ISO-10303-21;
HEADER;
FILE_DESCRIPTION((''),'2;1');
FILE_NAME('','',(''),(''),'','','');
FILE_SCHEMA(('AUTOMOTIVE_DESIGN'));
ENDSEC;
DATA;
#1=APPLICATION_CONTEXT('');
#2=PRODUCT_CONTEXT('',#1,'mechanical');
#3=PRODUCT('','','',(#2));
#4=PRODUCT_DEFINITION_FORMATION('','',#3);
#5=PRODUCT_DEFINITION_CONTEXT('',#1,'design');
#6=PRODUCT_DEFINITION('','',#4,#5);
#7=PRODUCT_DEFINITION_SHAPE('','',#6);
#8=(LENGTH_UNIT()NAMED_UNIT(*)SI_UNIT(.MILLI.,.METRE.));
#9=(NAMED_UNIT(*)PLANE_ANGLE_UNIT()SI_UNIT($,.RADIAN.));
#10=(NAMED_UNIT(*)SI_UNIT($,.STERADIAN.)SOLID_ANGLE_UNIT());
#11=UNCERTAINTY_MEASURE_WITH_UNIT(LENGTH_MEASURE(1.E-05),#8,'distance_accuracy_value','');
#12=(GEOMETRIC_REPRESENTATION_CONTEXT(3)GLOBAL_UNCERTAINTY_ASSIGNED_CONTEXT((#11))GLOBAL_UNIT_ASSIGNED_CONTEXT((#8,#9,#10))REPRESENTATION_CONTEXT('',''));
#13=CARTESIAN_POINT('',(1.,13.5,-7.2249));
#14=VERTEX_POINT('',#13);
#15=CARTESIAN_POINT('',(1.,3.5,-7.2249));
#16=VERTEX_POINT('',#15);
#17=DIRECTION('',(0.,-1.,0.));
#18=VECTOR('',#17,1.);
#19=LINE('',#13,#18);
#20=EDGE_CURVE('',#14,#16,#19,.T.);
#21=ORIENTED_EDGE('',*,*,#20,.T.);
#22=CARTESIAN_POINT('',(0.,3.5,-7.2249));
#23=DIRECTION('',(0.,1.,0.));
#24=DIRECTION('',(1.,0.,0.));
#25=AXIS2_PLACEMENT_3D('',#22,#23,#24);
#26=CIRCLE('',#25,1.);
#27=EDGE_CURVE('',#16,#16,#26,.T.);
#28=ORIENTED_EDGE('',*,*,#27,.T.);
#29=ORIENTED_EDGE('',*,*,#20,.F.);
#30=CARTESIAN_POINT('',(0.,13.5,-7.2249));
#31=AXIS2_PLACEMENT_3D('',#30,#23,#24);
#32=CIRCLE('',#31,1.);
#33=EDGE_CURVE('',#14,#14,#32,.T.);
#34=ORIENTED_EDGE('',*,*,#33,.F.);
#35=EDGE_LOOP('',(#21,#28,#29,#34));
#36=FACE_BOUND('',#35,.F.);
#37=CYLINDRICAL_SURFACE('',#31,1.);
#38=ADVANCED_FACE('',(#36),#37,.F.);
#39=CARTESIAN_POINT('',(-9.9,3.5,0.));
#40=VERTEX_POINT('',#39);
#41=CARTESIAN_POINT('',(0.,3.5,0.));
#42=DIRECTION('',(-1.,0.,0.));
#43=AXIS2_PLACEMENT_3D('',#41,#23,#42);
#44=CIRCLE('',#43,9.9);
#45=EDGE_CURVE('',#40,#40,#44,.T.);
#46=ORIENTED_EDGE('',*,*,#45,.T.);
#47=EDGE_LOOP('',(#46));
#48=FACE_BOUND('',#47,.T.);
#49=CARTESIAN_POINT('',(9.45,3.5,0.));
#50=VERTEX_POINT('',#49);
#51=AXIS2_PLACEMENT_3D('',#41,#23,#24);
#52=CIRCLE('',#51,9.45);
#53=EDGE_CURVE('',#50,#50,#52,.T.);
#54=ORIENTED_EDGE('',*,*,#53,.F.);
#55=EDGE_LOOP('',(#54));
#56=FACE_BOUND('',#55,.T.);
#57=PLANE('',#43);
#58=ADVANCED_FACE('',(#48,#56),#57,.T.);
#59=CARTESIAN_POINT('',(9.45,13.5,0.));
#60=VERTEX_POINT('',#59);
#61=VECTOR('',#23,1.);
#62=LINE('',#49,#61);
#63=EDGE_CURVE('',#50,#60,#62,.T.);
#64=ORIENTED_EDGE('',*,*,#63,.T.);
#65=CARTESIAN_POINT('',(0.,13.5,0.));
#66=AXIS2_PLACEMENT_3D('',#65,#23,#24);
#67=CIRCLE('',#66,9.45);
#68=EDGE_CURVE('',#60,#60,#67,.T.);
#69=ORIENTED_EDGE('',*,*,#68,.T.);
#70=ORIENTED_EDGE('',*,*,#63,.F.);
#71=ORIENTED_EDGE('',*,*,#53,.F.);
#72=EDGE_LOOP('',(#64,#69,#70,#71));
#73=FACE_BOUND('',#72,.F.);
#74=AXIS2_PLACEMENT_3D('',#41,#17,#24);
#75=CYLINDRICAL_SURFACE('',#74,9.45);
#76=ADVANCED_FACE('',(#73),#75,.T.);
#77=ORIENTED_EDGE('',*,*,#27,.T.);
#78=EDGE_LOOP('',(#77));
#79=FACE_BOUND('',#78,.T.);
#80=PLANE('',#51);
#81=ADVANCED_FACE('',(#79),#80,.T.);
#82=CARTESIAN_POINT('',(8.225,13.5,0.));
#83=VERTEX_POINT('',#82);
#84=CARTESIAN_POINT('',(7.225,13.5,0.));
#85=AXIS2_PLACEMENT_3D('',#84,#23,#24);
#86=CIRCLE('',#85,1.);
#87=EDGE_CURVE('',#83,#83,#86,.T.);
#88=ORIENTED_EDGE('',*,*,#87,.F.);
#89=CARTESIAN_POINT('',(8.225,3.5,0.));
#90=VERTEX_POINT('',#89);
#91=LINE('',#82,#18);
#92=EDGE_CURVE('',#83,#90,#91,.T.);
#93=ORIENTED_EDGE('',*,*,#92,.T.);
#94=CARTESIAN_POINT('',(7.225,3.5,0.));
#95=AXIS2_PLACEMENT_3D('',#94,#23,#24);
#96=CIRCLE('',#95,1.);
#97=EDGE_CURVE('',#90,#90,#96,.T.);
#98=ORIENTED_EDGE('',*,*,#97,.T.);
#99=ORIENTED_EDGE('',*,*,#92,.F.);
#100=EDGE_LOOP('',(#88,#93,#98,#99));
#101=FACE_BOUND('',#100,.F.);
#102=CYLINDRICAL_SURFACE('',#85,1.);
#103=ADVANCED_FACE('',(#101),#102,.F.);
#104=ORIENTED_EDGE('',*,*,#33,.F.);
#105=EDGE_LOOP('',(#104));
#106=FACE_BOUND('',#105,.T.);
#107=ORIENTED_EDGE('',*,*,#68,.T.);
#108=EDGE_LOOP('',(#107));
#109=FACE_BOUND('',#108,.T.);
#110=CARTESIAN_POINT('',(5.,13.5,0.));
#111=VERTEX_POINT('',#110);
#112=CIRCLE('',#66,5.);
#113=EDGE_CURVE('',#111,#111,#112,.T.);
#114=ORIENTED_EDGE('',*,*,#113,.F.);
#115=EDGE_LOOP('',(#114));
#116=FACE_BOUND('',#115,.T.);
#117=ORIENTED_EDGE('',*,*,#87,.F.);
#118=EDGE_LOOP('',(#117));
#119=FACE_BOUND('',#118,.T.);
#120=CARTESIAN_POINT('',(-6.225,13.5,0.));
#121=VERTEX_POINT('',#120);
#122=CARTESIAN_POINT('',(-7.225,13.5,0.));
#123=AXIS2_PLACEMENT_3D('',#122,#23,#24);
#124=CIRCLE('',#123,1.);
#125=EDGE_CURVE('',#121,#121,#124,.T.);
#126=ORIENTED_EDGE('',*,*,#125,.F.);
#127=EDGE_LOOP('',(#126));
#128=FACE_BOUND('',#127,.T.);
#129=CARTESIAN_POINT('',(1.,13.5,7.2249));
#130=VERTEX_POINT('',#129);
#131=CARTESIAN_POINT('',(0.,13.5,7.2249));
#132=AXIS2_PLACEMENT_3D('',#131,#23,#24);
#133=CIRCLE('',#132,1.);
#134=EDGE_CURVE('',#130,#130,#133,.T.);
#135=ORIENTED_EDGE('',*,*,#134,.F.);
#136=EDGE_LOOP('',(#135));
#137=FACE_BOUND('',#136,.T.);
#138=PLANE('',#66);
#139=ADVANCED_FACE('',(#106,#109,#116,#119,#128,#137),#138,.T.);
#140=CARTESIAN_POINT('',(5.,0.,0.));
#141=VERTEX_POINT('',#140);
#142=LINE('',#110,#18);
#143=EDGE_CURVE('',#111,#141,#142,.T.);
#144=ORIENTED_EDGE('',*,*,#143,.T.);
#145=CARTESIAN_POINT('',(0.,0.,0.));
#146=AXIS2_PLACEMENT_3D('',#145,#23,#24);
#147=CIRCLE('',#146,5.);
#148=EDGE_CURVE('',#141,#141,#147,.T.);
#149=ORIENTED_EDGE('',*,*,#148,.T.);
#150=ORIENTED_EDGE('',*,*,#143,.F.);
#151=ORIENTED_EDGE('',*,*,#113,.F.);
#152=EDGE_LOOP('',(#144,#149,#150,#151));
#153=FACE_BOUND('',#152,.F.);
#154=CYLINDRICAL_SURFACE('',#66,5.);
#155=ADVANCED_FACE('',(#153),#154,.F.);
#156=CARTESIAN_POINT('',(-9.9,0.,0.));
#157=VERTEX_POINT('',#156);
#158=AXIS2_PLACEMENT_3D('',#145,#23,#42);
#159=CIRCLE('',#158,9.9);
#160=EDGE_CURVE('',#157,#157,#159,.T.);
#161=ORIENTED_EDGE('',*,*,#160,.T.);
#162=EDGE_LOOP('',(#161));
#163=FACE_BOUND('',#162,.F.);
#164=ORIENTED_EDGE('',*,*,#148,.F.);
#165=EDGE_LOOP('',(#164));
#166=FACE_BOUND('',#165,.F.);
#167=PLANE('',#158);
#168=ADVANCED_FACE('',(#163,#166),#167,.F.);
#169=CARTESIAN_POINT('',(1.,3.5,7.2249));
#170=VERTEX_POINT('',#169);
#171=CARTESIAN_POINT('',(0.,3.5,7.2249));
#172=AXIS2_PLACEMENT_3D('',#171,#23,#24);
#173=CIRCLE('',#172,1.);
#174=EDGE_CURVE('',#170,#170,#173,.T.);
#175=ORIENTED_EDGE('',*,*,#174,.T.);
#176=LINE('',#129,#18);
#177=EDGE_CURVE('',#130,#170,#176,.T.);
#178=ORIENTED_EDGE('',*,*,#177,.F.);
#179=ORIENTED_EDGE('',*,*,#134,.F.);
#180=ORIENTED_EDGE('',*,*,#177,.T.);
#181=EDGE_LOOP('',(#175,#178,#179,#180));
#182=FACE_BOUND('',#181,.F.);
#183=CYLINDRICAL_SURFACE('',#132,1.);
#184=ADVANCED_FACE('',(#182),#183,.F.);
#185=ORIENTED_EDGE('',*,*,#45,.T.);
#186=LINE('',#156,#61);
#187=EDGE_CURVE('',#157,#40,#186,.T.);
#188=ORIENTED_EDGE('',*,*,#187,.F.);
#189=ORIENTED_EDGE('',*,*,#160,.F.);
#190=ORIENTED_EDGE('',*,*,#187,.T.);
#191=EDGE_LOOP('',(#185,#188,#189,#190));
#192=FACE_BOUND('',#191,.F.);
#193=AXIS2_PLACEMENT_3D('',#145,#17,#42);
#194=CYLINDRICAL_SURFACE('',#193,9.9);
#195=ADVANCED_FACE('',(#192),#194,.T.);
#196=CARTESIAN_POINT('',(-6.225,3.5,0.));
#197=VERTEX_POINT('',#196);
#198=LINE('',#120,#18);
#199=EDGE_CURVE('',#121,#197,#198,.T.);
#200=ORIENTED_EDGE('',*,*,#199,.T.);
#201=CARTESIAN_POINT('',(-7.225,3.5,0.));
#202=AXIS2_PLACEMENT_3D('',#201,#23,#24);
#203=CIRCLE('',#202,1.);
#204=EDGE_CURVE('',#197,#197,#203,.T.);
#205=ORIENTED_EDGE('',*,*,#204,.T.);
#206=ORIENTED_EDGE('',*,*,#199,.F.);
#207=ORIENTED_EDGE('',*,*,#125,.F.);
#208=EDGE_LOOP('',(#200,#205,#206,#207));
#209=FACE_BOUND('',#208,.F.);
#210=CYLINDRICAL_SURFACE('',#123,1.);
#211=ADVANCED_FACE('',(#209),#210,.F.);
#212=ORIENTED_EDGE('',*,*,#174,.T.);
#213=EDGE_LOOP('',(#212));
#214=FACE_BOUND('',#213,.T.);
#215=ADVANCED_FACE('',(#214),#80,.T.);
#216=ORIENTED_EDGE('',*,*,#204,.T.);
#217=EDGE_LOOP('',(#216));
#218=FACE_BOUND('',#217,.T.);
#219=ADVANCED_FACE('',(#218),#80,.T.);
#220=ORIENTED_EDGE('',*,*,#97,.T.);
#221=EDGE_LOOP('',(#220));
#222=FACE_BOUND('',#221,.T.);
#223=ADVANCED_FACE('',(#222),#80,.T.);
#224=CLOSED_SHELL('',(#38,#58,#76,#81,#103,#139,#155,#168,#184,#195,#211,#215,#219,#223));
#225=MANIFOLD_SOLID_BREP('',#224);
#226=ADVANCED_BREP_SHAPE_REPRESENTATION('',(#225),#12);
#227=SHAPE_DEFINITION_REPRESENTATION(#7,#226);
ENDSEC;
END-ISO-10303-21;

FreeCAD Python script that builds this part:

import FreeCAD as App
import Part
import Sketcher

doc = App.newDocument("Part")
body = doc.addObject("PartDesign::Body", "Body")

sketch1 = doc.addObject("Sketcher::SketchObject", "Sketch")
body.addObject(sketch1)
sketch1.AttachmentSupport = (doc.XZ_Plane, [""])
sketch1.MapMode = "FlatFace"
sketch1.addGeometry(Part.Circle(App.Vector(0, 0, 0), App.Vector(0, 0, 1), 10), False)
sketch1.addConstraint(Sketcher.Constraint("Coincident", 0, 3, -1, 1))
sketch1.addConstraint(Sketcher.Constraint("Diameter", 0, 19.8))
pad1 = doc.addObject("PartDesign::Pad", "Pad")
body.addObject(pad1)
pad1.Profile = sketch1
pad1.Length = 3.5
pad1.Reversed = True

sketch2 = doc.addObject("Sketcher::SketchObject", "Sketch001")
body.addObject(sketch2)
sketch2.AttachmentSupport = (doc.XZ_Plane, [""])
sketch2.MapMode = "FlatFace"
sketch2.AttachmentOffset = App.Placement(App.Vector(0, 0, -3.5), App.Rotation())
sketch2.addGeometry(Part.Circle(App.Vector(0, 0, 0), App.Vector(0, 0, 1), 9), False)
sketch2.addConstraint(Sketcher.Constraint("Coincident", 0, 3, -1, 1))
sketch2.addConstraint(Sketcher.Constraint("Diameter", 0, 18.9))
pad2 = doc.addObject("PartDesign::Pad", "Pad001")
body.addObject(pad2)
pad2.Profile = sketch2
pad2.Length = 10
pad2.Reversed = True

sketch3 = doc.addObject("Sketcher::SketchObject", "Sketch002")
body.addObject(sketch3)
sketch3.AttachmentSupport = (doc.XZ_Plane, [""])
sketch3.MapMode = "FlatFace"
sketch3.AttachmentOffset = App.Placement(App.Vector(0, 0, -13.5), App.Rotation())
sketch3.addGeometry(Part.Circle(App.Vector(0, 0, 0), App.Vector(0, 0, 1), 5), False)
sketch3.addConstraint(Sketcher.Constraint("Coincident", 0, 3, -1, 1))
sketch3.addConstraint(Sketcher.Constraint("Diameter", 0, 10.0))
pocket1 = doc.addObject("PartDesign::Pocket", "Pocket")
body.addObject(pocket1)
pocket1.Profile = sketch3
pocket1.Type = "ThroughAll"
pocket1.Reversed = True

sketch4 = doc.addObject("Sketcher::SketchObject", "Sketch003")
body.addObject(sketch4)
sketch4.AttachmentSupport = (doc.XZ_Plane, [""])
sketch4.MapMode = "FlatFace"
sketch4.AttachmentOffset = App.Placement(App.Vector(0, 0, -13.5), App.Rotation())
sketch4.addGeometry(Part.Circle(App.Vector(0, 7.2, 0), App.Vector(0, 0, 1), 1), False)
sketch4.addGeometry(Part.Circle(App.Vector(0, -7.2, 0), App.Vector(0, 0, 1), 1), False)
sketch4.addGeometry(Part.Circle(App.Vector(7.2, 0, 0), App.Vector(0, 0, 1), 1), False)
sketch4.addGeometry(Part.Circle(App.Vector(-7.2, 0, 0), App.Vector(0, 0, 1), 1), False)
sketch4.addConstraint(Sketcher.Constraint("Equal", 0, 1))
sketch4.addConstraint(Sketcher.Constraint("Equal", 1, 2))
sketch4.addConstraint(Sketcher.Constraint("Equal", 2, 3))
sketch4.addConstraint(Sketcher.Constraint("Symmetric", 0, 3, 1, 3, -1, 1))
sketch4.addConstraint(Sketcher.Constraint("Symmetric", 2, 3, 3, 3, -1, 1))
sketch4.addConstraint(Sketcher.Constraint("PointOnObject", 0, 3, -2))
sketch4.addConstraint(Sketcher.Constraint("PointOnObject", 2, 3, -1))
sketch4.addConstraint(Sketcher.Constraint("Diameter", 0, 2.0))
sketch4.addConstraint(Sketcher.Constraint("DistanceX", 3, 3, 2, 3, 14.45))
sketch4.addConstraint(Sketcher.Constraint("DistanceY", -1, 1, 0, 3, 7.225))
pocket2 = doc.addObject("PartDesign::Pocket", "Pocket001")
body.addObject(pocket2)
pocket2.Profile = sketch4
pocket2.Length = 10
pocket2.Reversed = True

doc.recompute()
